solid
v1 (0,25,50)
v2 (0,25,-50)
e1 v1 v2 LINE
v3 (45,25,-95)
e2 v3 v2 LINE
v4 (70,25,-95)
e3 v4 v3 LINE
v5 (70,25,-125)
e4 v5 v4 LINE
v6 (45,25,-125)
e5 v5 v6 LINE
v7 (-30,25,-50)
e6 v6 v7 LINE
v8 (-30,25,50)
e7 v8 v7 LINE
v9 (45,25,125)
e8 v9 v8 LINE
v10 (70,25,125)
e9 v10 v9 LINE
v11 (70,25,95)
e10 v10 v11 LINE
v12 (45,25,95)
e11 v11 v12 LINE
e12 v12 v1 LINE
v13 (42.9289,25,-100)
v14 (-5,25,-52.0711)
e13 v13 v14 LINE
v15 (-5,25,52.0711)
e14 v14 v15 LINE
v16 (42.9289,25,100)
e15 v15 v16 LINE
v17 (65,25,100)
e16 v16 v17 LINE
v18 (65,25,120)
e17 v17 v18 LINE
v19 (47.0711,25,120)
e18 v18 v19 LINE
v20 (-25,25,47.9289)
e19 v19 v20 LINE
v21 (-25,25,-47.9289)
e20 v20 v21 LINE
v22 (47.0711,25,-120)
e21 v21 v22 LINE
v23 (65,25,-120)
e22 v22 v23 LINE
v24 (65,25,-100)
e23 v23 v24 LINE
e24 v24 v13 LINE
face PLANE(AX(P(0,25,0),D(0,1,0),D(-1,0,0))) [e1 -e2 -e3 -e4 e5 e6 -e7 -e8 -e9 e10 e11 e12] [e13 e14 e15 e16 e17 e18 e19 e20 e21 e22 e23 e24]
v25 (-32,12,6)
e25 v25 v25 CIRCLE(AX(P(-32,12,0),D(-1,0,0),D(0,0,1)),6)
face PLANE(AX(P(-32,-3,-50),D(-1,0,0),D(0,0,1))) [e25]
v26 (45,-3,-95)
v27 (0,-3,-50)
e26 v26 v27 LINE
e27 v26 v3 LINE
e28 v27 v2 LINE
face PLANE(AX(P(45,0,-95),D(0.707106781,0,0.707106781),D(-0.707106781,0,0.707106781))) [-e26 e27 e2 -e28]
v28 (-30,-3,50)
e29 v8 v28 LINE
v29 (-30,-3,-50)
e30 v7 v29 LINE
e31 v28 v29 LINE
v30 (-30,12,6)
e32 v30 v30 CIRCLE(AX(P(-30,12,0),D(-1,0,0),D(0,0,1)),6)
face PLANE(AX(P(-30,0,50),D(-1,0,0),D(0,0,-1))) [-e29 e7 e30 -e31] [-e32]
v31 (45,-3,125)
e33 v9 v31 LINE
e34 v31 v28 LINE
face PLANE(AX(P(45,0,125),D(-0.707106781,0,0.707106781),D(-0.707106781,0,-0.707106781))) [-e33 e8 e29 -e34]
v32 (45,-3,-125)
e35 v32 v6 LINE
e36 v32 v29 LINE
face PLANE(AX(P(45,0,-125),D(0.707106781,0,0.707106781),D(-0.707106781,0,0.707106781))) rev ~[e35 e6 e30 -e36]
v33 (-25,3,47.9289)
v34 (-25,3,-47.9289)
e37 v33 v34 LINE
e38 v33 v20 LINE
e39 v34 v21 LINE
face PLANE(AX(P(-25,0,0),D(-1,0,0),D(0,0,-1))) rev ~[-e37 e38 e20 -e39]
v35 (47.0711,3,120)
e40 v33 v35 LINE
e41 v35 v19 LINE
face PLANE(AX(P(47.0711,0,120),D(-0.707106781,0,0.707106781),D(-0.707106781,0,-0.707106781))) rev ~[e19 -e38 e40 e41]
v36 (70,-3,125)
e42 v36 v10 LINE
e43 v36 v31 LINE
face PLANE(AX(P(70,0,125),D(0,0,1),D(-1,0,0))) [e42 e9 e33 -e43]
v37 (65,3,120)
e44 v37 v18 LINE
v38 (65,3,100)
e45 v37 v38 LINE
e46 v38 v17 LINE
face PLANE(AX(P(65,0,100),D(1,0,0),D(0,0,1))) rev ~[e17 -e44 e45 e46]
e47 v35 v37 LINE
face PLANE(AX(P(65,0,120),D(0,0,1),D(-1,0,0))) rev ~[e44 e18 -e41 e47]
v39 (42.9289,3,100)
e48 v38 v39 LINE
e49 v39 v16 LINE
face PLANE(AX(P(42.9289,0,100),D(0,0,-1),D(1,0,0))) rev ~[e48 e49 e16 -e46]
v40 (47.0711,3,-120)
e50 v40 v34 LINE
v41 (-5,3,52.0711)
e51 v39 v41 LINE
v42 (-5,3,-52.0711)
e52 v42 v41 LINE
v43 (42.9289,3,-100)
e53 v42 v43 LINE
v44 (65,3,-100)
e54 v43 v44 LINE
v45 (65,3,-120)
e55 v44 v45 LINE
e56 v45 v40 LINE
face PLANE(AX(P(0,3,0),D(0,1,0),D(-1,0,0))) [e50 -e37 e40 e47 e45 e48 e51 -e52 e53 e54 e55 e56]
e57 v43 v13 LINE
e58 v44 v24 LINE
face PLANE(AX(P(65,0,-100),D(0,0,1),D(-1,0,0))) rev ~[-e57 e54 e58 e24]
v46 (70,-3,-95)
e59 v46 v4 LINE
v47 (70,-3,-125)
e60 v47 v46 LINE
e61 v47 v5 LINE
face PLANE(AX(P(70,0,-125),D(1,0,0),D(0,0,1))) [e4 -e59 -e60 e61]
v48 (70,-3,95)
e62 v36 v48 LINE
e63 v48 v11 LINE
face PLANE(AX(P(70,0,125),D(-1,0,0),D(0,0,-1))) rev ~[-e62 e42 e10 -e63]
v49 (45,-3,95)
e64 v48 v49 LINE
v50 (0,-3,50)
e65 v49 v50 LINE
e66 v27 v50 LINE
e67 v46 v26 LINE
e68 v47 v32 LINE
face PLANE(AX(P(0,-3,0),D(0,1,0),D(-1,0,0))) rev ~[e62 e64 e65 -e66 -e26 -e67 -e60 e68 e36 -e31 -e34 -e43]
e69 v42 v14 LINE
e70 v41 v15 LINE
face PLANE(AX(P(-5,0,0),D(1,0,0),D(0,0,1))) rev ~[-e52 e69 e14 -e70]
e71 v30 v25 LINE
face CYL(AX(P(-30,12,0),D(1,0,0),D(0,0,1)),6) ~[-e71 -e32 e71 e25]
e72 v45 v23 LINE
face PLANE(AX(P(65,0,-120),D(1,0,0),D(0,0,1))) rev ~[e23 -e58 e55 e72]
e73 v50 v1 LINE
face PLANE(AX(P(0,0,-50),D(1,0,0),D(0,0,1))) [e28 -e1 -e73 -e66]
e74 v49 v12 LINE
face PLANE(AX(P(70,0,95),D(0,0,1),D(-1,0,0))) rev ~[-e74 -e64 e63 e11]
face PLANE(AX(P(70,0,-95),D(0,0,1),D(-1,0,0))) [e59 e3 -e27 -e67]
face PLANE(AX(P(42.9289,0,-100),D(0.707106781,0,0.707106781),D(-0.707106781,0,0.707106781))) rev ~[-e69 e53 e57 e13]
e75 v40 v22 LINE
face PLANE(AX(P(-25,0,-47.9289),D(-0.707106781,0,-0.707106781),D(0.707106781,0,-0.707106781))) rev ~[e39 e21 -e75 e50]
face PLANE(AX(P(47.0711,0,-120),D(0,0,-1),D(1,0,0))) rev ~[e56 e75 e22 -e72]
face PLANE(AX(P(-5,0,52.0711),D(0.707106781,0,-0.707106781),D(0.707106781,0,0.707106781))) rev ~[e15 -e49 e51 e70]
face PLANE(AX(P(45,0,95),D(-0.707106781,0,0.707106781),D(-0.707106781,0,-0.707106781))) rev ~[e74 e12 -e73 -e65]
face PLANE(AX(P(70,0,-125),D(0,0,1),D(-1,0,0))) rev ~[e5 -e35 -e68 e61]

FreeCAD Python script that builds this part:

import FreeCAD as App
import Part
import Sketcher


def add_polygon(sketch, points):
    """Adds a closed chain of lines whose ends are joined by coincident constraints."""
    first, n = sketch.GeometryCount, len(points)
    for a, b in zip(points, points[1:] + points[:1]):
        sketch.addGeometry(Part.LineSegment(App.Vector(*a, 0), App.Vector(*b, 0)), False)
    for i in range(n):
        sketch.addConstraint(Sketcher.Constraint("Coincident", first + i, 2, first + (i + 1) % n, 1))

doc = App.newDocument("Part")
body = doc.addObject("PartDesign::Body", "Body")

# Sketch on XZ plane
sketch1 = body.newObject("Sketcher::SketchObject", "Sketch")
sketch1.AttachmentSupport = (doc.getObject("XZ_Plane"), [""])
sketch1.MapMode = "FlatFace"
add_polygon(sketch1, [(45, 125), (70, 125), (70, 95), (45, 95), (0, 50), (0, -50), (45, -95), (70, -95), (70, -125), (45, -125), (-30, -50), (-30, 50)])  # lines 0-11
sketch1.addConstraint(Sketcher.Constraint("Horizontal", 0))
sketch1.addConstraint(Sketcher.Constraint("Vertical", 1))
sketch1.addConstraint(Sketcher.Constraint("Horizontal", 2))
sketch1.addConstraint(Sketcher.Constraint("Vertical", 4))
sketch1.addConstraint(Sketcher.Constraint("Horizontal", 6))
sketch1.addConstraint(Sketcher.Constraint("Vertical", 7))
sketch1.addConstraint(Sketcher.Constraint("Horizontal", 8))
sketch1.addConstraint(Sketcher.Constraint("Vertical", 10))
sketch1.addConstraint(Sketcher.Constraint("Symmetric", 3, 2, 4, 2, -1, 1))
sketch1.addConstraint(Sketcher.Constraint("Symmetric", 2, 2, 5, 2, -1))
sketch1.addConstraint(Sketcher.Constraint("Symmetric", 0, 2, 7, 2, -1))
sketch1.addConstraint(Sketcher.Constraint("Perpendicular", 3, 5))
sketch1.addConstraint(Sketcher.Constraint("Parallel", 5, 9))
sketch1.addConstraint(Sketcher.Constraint("Perpendicular", 9, 11))
sketch1.addConstraint(Sketcher.Constraint("Horizontal", 4, 2, 9, 2))
sketch1.addConstraint(Sketcher.Constraint("Horizontal", 3, 2, 10, 2))
sketch1.addConstraint(Sketcher.Constraint("Vertical", 5, 2, 8, 2))
sketch1.addConstraint(Sketcher.Constraint("DistanceX", 0, 1, 0, 2, 25.0))
sketch1.addConstraint(Sketcher.Constraint("DistanceY", 1, 2, 1, 1, 30.0))
sketch1.addConstraint(Sketcher.Constraint("DistanceY", 4, 2, 4, 1, 100.0))
sketch1.addConstraint(Sketcher.Constraint("DistanceY", -1, 1, 0, 2, 125.0))
pad1 = body.newObject("PartDesign::Pad", "Pad")
pad1.Profile = sketch1
pad1.Length = 6
pad1.Midplane = True

# Sketch on XZ plane
sketch2 = body.newObject("Sketcher::SketchObject", "Sketch001")
sketch2.AttachmentSupport = (doc.getObject("XZ_Plane"), [""])
sketch2.MapMode = "FlatFace"
add_polygon(sketch2, [(45, 125), (70, 125), (70, 95), (45, 95), (0, 50), (0, -50), (45, -95), (70, -95), (70, -125), (45, -125), (-30, -50), (-30, 50)])  # lines 0-11
add_polygon(sketch2, [(-5, 52.0711), (42.9289, 100), (65, 100), (65, 120), (47.0711, 120), (-25, 47.9289), (-25, -47.9289), (47.0711, -120), (65, -120), (65, -100), (42.9289, -100), (-5, -52.0711)])  # lines 12-23
sketch2.addConstraint(Sketcher.Constraint("Horizontal", 0))
sketch2.addConstraint(Sketcher.Constraint("Vertical", 1))
sketch2.addConstraint(Sketcher.Constraint("Horizontal", 2))
sketch2.addConstraint(Sketcher.Constraint("Vertical", 4))
sketch2.addConstraint(Sketcher.Constraint("Horizontal", 6))
sketch2.addConstraint(Sketcher.Constraint("Vertical", 7))
sketch2.addConstraint(Sketcher.Constraint("Horizontal", 8))
sketch2.addConstraint(Sketcher.Constraint("Vertical", 10))
sketch2.addConstraint(Sketcher.Constraint("Horizontal", 13))
sketch2.addConstraint(Sketcher.Constraint("Vertical", 14))
sketch2.addConstraint(Sketcher.Constraint("Horizontal", 15))
sketch2.addConstraint(Sketcher.Constraint("Vertical", 17))
sketch2.addConstraint(Sketcher.Constraint("Horizontal", 19))
sketch2.addConstraint(Sketcher.Constraint("Vertical", 20))
sketch2.addConstraint(Sketcher.Constraint("Horizontal", 21))
sketch2.addConstraint(Sketcher.Constraint("Vertical", 23))
sketch2.addConstraint(Sketcher.Constraint("Symmetric", 3, 2, 4, 2, -1, 1))
sketch2.addConstraint(Sketcher.Constraint("Symmetric", 2, 2, 5, 2, -1))
sketch2.addConstraint(Sketcher.Constraint("Symmetric", 0, 2, 7, 2, -1))
sketch2.addConstraint(Sketcher.Constraint("Symmetric", 15, 2, 18, 2, -1))
sketch2.addConstraint(Sketcher.Constraint("Symmetric", 13, 2, 20, 2, -1))
sketch2.addConstraint(Sketcher.Constraint("Perpendicular", 3, 5))
sketch2.addConstraint(Sketcher.Constraint("Parallel", 5, 9))
sketch2.addConstraint(Sketcher.Constraint("Perpendicular", 9, 11))
sketch2.addConstraint(Sketcher.Constraint("Parallel", 11, 12))
sketch2.addConstraint(Sketcher.Constraint("Parallel", 12, 16))
sketch2.addConstraint(Sketcher.Constraint("Perpendicular", 16, 18))
sketch2.addConstraint(Sketcher.Constraint("Parallel", 18, 22))
sketch2.addConstraint(Sketcher.Constraint("Horizontal", 4, 2, 9, 2))
sketch2.addConstraint(Sketcher.Constraint("Horizontal", 3, 2, 10, 2))
sketch2.addConstraint(Sketcher.Constraint("Vertical", 5, 2, 8, 2))
sketch2.addConstraint(Sketcher.Constraint("Vertical", 12, 2, 21, 2))
sketch2.addConstraint(Sketcher.Constraint("DistanceX", 0, 1, 0, 2, 25.0))
sketch2.addConstraint(Sketcher.Constraint("DistanceY", 1, 2, 1, 1, 30.0))
sketch2.addConstraint(Sketcher.Constraint("DistanceY", 4, 2, 4, 1, 100.0))
sketch2.addConstraint(Sketcher.Constraint("DistanceY", 14, 1, 14, 2, 20.0))
sketch2.addConstraint(Sketcher.Constraint("DistanceY", -1, 1, 0, 2, 125.0))
sketch2.addConstraint(Sketcher.Constraint("DistanceY", -1, 1, 12, 2, 100.0))
sketch2.addConstraint(Sketcher.Constraint("DistanceX", 16, 2, -1, 1, 25.0))
sketch2.addConstraint(Sketcher.Constraint("DistanceX", 2, 2, 13, 2, 20.0))
sketch2.addConstraint(Sketcher.Constraint("DistanceX", 17, 2, 22, 2, 20.0))
sketch2.addConstraint(Sketcher.Constraint("DistanceX", 13, 1, 13, 2, 22.071))
sketch2.addConstraint(Sketcher.Constraint("DistanceX", 15, 2, 15, 1, 17.929))
pad2 = body.newObject("PartDesign::Pad", "Pad001")
pad2.Profile = sketch2
pad2.Length = 25
pad2.Reversed = True

# Sketch on YZ plane
sketch3 = body.newObject("Sketcher::SketchObject", "Sketch002")
sketch3.AttachmentSupport = (doc.getObject("YZ_Plane"), [""])
sketch3.MapMode = "FlatFace"
sketch3.AttachmentOffset = App.Placement(App.Vector(0, 0, -30), App.Rotation())
sketch3.addGeometry(Part.Circle(App.Vector(12, 0, 0), App.Vector(0, 0, 1), 6), False)
sketch3.addConstraint(Sketcher.Constraint("PointOnObject", 0, 3, -1))
sketch3.addConstraint(Sketcher.Constraint("Diameter", 0, 12.0))
sketch3.addConstraint(Sketcher.Constraint("DistanceX", -1, 1, 0, 3, 12.0))
pad3 = body.newObject("PartDesign::Pad", "Pad002")
pad3.Profile = sketch3
pad3.Length = 2
pad3.Reversed = True

doc.recompute()
